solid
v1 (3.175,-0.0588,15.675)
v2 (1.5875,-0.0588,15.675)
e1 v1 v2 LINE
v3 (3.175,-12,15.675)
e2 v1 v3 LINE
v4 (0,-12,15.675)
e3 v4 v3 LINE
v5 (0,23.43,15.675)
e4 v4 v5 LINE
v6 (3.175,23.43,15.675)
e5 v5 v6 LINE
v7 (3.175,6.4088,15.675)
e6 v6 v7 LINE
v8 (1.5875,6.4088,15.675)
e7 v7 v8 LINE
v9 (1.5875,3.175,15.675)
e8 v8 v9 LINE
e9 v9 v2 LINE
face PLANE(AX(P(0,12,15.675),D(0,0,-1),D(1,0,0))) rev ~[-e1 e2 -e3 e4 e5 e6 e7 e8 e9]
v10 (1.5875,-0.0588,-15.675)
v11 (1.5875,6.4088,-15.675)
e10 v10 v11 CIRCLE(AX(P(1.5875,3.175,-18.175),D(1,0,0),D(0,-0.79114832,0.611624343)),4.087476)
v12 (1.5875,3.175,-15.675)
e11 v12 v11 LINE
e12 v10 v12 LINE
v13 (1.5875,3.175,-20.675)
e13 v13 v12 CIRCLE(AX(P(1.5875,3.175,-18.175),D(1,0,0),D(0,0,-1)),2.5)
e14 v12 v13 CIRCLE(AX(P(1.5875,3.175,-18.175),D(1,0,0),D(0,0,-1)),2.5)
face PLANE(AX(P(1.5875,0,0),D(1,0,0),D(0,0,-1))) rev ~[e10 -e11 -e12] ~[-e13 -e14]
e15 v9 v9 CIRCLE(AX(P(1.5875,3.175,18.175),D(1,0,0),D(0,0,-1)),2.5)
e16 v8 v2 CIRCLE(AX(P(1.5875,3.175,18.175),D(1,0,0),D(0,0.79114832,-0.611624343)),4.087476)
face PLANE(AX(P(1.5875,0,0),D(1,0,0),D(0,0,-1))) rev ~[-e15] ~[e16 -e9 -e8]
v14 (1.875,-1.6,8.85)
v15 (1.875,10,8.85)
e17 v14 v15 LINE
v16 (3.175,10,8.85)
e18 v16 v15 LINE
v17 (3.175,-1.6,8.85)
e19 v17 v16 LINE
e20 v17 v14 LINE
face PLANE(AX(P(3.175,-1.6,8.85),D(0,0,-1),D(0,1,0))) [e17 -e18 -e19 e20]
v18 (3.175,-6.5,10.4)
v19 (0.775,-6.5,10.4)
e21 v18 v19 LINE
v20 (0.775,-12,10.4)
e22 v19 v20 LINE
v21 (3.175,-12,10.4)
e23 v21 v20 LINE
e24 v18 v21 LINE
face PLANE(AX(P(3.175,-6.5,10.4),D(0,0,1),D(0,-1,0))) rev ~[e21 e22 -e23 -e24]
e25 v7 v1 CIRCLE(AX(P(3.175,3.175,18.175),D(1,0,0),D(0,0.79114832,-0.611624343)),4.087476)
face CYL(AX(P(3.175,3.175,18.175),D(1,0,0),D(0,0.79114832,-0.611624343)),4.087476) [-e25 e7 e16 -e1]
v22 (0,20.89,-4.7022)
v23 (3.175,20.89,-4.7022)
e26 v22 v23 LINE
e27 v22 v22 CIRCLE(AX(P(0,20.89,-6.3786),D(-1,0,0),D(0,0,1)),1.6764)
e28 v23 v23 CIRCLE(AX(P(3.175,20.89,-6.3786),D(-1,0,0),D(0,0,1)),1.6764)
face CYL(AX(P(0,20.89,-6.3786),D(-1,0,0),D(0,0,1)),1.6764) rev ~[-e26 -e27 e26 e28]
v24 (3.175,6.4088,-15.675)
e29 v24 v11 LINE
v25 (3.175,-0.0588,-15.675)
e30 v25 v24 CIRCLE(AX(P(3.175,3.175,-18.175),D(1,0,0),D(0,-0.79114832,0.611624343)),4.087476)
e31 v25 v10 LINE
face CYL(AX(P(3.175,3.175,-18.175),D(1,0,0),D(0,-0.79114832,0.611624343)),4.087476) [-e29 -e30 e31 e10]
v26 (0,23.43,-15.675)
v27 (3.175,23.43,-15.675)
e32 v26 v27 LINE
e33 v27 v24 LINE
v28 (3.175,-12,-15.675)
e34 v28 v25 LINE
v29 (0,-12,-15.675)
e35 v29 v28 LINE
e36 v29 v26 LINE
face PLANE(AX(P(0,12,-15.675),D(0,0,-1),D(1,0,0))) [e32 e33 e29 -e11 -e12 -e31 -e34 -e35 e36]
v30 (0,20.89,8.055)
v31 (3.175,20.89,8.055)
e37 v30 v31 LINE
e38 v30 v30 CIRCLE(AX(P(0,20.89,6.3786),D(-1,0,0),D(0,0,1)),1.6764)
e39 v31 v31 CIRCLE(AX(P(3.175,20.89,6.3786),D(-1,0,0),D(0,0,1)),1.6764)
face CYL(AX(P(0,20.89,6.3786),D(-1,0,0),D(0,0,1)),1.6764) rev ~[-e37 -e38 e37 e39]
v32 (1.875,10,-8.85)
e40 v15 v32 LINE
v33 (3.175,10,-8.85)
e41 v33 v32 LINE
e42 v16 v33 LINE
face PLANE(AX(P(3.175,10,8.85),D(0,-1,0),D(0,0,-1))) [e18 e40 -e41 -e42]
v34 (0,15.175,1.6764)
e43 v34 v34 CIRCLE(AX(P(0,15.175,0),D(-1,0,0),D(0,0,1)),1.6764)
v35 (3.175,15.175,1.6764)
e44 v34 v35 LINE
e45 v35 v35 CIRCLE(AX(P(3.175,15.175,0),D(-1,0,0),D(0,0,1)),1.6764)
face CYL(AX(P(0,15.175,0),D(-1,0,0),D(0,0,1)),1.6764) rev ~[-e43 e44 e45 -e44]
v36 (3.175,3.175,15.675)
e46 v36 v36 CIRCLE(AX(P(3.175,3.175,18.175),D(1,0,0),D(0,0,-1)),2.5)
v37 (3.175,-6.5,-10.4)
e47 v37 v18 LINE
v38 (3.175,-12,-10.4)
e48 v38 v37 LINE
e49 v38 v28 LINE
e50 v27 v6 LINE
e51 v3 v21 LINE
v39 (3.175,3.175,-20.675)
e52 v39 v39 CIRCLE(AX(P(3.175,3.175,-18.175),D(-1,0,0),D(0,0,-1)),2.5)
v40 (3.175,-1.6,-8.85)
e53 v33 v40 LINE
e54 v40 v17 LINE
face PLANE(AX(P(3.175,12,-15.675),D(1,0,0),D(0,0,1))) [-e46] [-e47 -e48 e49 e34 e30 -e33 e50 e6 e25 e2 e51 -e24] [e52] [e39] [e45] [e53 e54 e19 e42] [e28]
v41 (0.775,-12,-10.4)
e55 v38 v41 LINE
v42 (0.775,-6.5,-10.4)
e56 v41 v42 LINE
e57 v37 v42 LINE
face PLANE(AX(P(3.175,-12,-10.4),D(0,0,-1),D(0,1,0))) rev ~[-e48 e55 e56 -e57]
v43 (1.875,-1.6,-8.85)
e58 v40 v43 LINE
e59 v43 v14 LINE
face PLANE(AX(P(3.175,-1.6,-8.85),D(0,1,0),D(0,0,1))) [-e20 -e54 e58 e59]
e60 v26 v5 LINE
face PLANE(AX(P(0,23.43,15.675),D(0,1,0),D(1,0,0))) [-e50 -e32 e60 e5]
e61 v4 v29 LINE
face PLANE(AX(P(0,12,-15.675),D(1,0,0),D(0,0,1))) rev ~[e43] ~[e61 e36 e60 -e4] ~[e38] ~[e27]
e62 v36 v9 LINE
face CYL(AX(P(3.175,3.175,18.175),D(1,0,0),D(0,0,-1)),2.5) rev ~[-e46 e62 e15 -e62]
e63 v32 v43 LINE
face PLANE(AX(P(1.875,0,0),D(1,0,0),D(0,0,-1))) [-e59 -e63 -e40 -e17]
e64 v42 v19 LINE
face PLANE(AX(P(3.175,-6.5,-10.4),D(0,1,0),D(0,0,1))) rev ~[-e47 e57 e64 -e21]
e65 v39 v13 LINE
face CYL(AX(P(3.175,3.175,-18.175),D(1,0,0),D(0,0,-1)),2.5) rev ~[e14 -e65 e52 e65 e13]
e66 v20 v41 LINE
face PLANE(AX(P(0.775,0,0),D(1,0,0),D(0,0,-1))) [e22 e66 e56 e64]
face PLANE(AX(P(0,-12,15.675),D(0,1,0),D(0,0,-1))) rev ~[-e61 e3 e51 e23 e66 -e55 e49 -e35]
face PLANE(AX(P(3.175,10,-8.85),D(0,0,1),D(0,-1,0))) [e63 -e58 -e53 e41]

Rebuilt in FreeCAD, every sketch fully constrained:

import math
import FreeCAD as App
import Part
import Sketcher
from FreeCAD import Vector

doc = App.newDocument("Part")
params = doc.addObject("Spreadsheet::Sheet", "Params")
for row, (alias, value) in enumerate([
    ("sketch1_width", "24 mm"),
    ("sketch1_height", "31.35 mm"),
    ("pad1_length", "3.175 mm"),
    ("sketch2_width", "5.5 mm"),
    ("sketch2_height", "20.8 mm"),
    ("pocket1_length", "2.4 mm"),
    ("sketch3_width", "11.6 mm"),
    ("sketch3_height", "17.7 mm"),
    ("pocket2_length", "1.3 mm"),
    ("sketch4_diameter", "5 mm"),
    ("pad2_length", "1.5875 mm"),
    ("sketch5_height", "31.35 mm"),
    ("pad3_length", "11.43 mm"),
], start=1):
    params.set(f"A{row}", alias)
    params.set(f"B{row}", "=" + value)
    params.setAlias(f"B{row}", alias)

body = doc.addObject("PartDesign::Body", "Body")

# Sketch on YZ plane
sketch1 = body.newObject("Sketcher::SketchObject", "Sketch")
sketch1.AttachmentSupport = (doc.getObject("YZ_Plane"), [""])
sketch1.MapMode = "FlatFace"
sketch1.addGeometry([
    Part.LineSegment(Vector(12, -15.675, 0), Vector(12, 15.675, 0)),
    Part.LineSegment(Vector(12, 15.675, 0), Vector(-12, 15.675, 0)),
    Part.LineSegment(Vector(-12, 15.675, 0), Vector(-12, -15.675, 0)),
    Part.LineSegment(Vector(-12, -15.675, 0), Vector(12, -15.675, 0)),
], False)
sketch1.addConstraint([
    Sketcher.Constraint("Coincident", 0, 2, 1, 1),
    Sketcher.Constraint("Coincident", 1, 2, 2, 1),
    Sketcher.Constraint("Coincident", 2, 2, 3, 1),
    Sketcher.Constraint("Coincident", 3, 2, 0, 1),
    Sketcher.Constraint("Vertical", 0),
    Sketcher.Constraint("Horizontal", 1),
    Sketcher.Constraint("Vertical", 2),
    Sketcher.Constraint("Horizontal", 3),
    Sketcher.Constraint("Symmetric", 0, 2, 2, 2, -1, 1),
    Sketcher.Constraint("DistanceX", 1, 2, 1, 1, 24.0),
    Sketcher.Constraint("DistanceY", 0, 1, 0, 2, 31.35),
])
sketch1.setExpression("Constraints[9]", "Params.sketch1_width")
sketch1.setExpression("Constraints[10]", "Params.sketch1_height")
pad1 = body.newObject("PartDesign::Pad", "Pad")
pad1.Profile = sketch1
pad1.setExpression("Length", "Params.pad1_length")

# Sketch on YZ plane
sketch2 = body.newObject("Sketcher::SketchObject", "Sketch001")
sketch2.AttachmentSupport = (doc.getObject("YZ_Plane"), [""])
sketch2.MapMode = "FlatFace"
sketch2.AttachmentOffset = App.Placement(Vector(0, 0, 3.175), App.Rotation())
sketch2.addGeometry([
    Part.LineSegment(Vector(-6.5, 10.4, 0), Vector(-12, 10.4, 0)),
    Part.LineSegment(Vector(-12, 10.4, 0), Vector(-12, -10.4, 0)),
    Part.LineSegment(Vector(-12, -10.4, 0), Vector(-6.5, -10.4, 0)),
    Part.LineSegment(Vector(-6.5, -10.4, 0), Vector(-6.5, 10.4, 0)),
], False)
sketch2.addConstraint([
    Sketcher.Constraint("Coincident", 0, 2, 1, 1),
    Sketcher.Constraint("Coincident", 1, 2, 2, 1),
    Sketcher.Constraint("Coincident", 2, 2, 3, 1),
    Sketcher.Constraint("Coincident", 3, 2, 0, 1),
    Sketcher.Constraint("Horizontal", 0),
    Sketcher.Constraint("Vertical", 1),
    Sketcher.Constraint("Horizontal", 2),
    Sketcher.Constraint("Vertical", 3),
    Sketcher.Constraint("DistanceX", 0, 2, 0, 1, 5.5),
    Sketcher.Constraint("DistanceY", 1, 2, 1, 1, 20.8),
    Sketcher.Constraint("DistanceY", -1, 1, 0, 2, 10.4),
    Sketcher.Constraint("DistanceX", 0, 2, -1, 1, 12.0),
])
sketch2.setExpression("Constraints[8]", "Params.sketch2_width")
sketch2.setExpression("Constraints[9]", "Params.sketch2_height")
pocket1 = body.newObject("PartDesign::Pocket", "Pocket")
pocket1.Profile = sketch2
pocket1.setExpression("Length", "Params.pocket1_length")

# Sketch on YZ plane
sketch3 = body.newObject("Sketcher::SketchObject", "Sketch002")
sketch3.AttachmentSupport = (doc.getObject("YZ_Plane"), [""])
sketch3.MapMode = "FlatFace"
sketch3.AttachmentOffset = App.Placement(Vector(0, 0, 3.175), App.Rotation())
sketch3.addGeometry([
    Part.LineSegment(Vector(10, -8.85, 0), Vector(10, 8.85, 0)),
    Part.LineSegment(Vector(10, 8.85, 0), Vector(-1.6, 8.85, 0)),
    Part.LineSegment(Vector(-1.6, 8.85, 0), Vector(-1.6, -8.85, 0)),
    Part.LineSegment(Vector(-1.6, -8.85, 0), Vector(10, -8.85, 0)),
], False)
sketch3.addConstraint([
    Sketcher.Constraint("Coincident", 0, 2, 1, 1),
    Sketcher.Constraint("Coincident", 1, 2, 2, 1),
    Sketcher.Constraint("Coincident", 2, 2, 3, 1),
    Sketcher.Constraint("Coincident", 3, 2, 0, 1),
    Sketcher.Constraint("Vertical", 0),
    Sketcher.Constraint("Horizontal", 1),
    Sketcher.Constraint("Vertical", 2),
    Sketcher.Constraint("Horizontal", 3),
    Sketcher.Constraint("DistanceX", 1, 2, 1, 1, 11.6),
    Sketcher.Constraint("DistanceY", 0, 1, 0, 2, 17.7),
    Sketcher.Constraint("DistanceY", -1, 1, 0, 2, 8.85),
    Sketcher.Constraint("DistanceX", -1, 1, 0, 2, 10.0),
])
sketch3.setExpression("Constraints[8]", "Params.sketch3_width")
sketch3.setExpression("Constraints[9]", "Params.sketch3_height")
pocket2 = body.newObject("PartDesign::Pocket", "Pocket001")
pocket2.Profile = sketch3
pocket2.setExpression("Length", "Params.pocket2_length")

# Sketch on YZ plane
sketch4 = body.newObject("Sketcher::SketchObject", "Sketch003")
sketch4.AttachmentSupport = (doc.getObject("YZ_Plane"), [""])
sketch4.MapMode = "FlatFace"
sketch4.AttachmentOffset = App.Placement(Vector(0, 0, 3.175), App.Rotation())
sketch4.addGeometry([
    Part.LineSegment(Vector(-0.0588, 15.675, 0), Vector(3.175, 15.675, 0)),  # 0
    Part.LineSegment(Vector(3.175, 15.675, 0), Vector(6.4088, 15.675, 0)),  # 1
    Part.ArcOfCircle(Part.Circle(Vector(3.175, 18.175, 0), Vector(0, 0, 1), 4.087476), math.radians(-37.707046), math.radians(217.707046)),  # 2
    Part.Circle(Vector(3.175, 18.175, 0), Vector(0, 0, 1), 2.5),  # 3
    Part.LineSegment(Vector(6.4088, -15.675, 0), Vector(3.175, -15.675, 0)),  # 4
    Part.LineSegment(Vector(3.175, -15.675, 0), Vector(-0.0588, -15.675, 0)),  # 5
    Part.ArcOfCircle(Part.Circle(Vector(3.175, -18.175, 0), Vector(0, 0, 1), 4.087476), math.radians(142.292954), math.radians(397.707046)),  # 6
    Part.Circle(Vector(3.175, -18.175, 0), Vector(0, 0, 1), 2.5),  # 7
], False)
sketch4.addConstraint([
    Sketcher.Constraint("Coincident", 0, 2, 1, 1),
    Sketcher.Constraint("Coincident", 1, 2, 2, 1),
    Sketcher.Constraint("Coincident", 2, 2, 0, 1),
    Sketcher.Constraint("Coincident", 4, 2, 5, 1),
    Sketcher.Constraint("Coincident", 5, 2, 6, 1),
    Sketcher.Constraint("Coincident", 6, 2, 4, 1),
    Sketcher.Constraint("Horizontal", 0),
    Sketcher.Constraint("Horizontal", 1),
    Sketcher.Constraint("Horizontal", 4),
    Sketcher.Constraint("Horizontal", 5),
    Sketcher.Constraint("Coincident", 3, 3, 2, 3),
    Sketcher.Constraint("Coincident", 7, 3, 6, 3),
    Sketcher.Constraint("Equal", 2, 6),
    Sketcher.Constraint("Equal", 3, 7),
    Sketcher.Constraint("Symmetric", 2, 3, 6, 3, -1),
    Sketcher.Constraint("Symmetric", 0, 2, 4, 2, -1),
    Sketcher.Constraint("Vertical", 7, 3, 0, 2),
    Sketcher.Constraint("Diameter", 3, 5.0),
    Sketcher.Constraint("Radius", 2, 4.0875),
    Sketcher.Constraint("DistanceY", 0, 2, 2, 3, 2.5),
    Sketcher.Constraint("DistanceY", 6, 3, 2, 3, 36.35),
    Sketcher.Constraint("DistanceX", -1, 1, 2, 3, 3.175),
])
sketch4.setExpression("Constraints[17]", "Params.sketch4_diameter")
pad2 = body.newObject("PartDesign::Pad", "Pad001")
pad2.Profile = sketch4
pad2.setExpression("Length", "Params.pad2_length")
pad2.Reversed = True

# Sketch on XZ plane
sketch5 = body.newObject("Sketcher::SketchObject", "Sketch004")
sketch5.AttachmentSupport = (doc.getObject("XZ_Plane"), [""])
sketch5.MapMode = "FlatFace"
sketch5.AttachmentOffset = App.Placement(Vector(0, 0, -12), App.Rotation())
sketch5.addGeometry([
    Part.LineSegment(Vector(3.175, -15.675, 0), Vector(0, -15.675, 0)),
    Part.LineSegment(Vector(0, -15.675, 0), Vector(0, 15.675, 0)),
    Part.LineSegment(Vector(0, 15.675, 0), Vector(3.175, 15.675, 0)),
    Part.LineSegment(Vector(3.175, 15.675, 0), Vector(3.175, -15.675, 0)),
], False)
sketch5.addConstraint([
    Sketcher.Constraint("Coincident", 0, 2, 1, 1),
    Sketcher.Constraint("Coincident", 1, 2, 2, 1),
    Sketcher.Constraint("Coincident", 2, 2, 3, 1),
    Sketcher.Constraint("Coincident", 3, 2, 0, 1),
    Sketcher.Constraint("Horizontal", 0),
    Sketcher.Constraint("Vertical", 1),
    Sketcher.Constraint("Horizontal", 2),
    Sketcher.Constraint("Vertical", 3),
    Sketcher.Constraint("Symmetric", 0, 2, 1, 2, -1, 1),
    Sketcher.Constraint("DistanceY", 1, 1, 1, 2, 31.35),
    Sketcher.Constraint("DistanceX", 0, 2, 0, 1, 3.175),
])
sketch5.setExpression("Constraints[9]", "Params.sketch5_height")
pad3 = body.newObject("PartDesign::Pad", "Pad002")
pad3.Profile = sketch5
pad3.setExpression("Length", "Params.pad3_length")
pad3.Reversed = True

# Sketch on YZ plane
sketch6 = body.newObject("Sketcher::SketchObject", "Sketch005")
sketch6.AttachmentSupport = (doc.getObject("YZ_Plane"), [""])
sketch6.MapMode = "FlatFace"
sketch6.addGeometry([
    Part.Circle(Vector(20.89, -6.3786, 0), Vector(0, 0, 1), 1.6764),
    Part.Circle(Vector(20.89, 6.3786, 0), Vector(0, 0, 1), 1.6764),
    Part.Circle(Vector(15.175, 0, 0), Vector(0, 0, 1), 1.6764),
], False)
sketch6.addConstraint([
    Sketcher.Constraint("Equal", 0, 1),
    Sketcher.Constraint("Equal", 1, 2),
    Sketcher.Constraint("Symmetric", 0, 3, 1, 3, -1),
    Sketcher.Constraint("PointOnObject", 2, 3, -1),
    Sketcher.Constraint("Diameter", 0, 3.3528),
    Sketcher.Constraint("DistanceX", -1, 1, 0, 3, 20.89),
    Sketcher.Constraint("DistanceX", -1, 1, 2, 3, 15.175),
    Sketcher.Constraint("DistanceY", 0, 3, -1, 1, 6.3786),
])
pocket3 = body.newObject("PartDesign::Pocket", "Pocket002")
pocket3.Profile = sketch6
pocket3.Type = "ThroughAll"
pocket3.Reversed = True

doc.recompute()
